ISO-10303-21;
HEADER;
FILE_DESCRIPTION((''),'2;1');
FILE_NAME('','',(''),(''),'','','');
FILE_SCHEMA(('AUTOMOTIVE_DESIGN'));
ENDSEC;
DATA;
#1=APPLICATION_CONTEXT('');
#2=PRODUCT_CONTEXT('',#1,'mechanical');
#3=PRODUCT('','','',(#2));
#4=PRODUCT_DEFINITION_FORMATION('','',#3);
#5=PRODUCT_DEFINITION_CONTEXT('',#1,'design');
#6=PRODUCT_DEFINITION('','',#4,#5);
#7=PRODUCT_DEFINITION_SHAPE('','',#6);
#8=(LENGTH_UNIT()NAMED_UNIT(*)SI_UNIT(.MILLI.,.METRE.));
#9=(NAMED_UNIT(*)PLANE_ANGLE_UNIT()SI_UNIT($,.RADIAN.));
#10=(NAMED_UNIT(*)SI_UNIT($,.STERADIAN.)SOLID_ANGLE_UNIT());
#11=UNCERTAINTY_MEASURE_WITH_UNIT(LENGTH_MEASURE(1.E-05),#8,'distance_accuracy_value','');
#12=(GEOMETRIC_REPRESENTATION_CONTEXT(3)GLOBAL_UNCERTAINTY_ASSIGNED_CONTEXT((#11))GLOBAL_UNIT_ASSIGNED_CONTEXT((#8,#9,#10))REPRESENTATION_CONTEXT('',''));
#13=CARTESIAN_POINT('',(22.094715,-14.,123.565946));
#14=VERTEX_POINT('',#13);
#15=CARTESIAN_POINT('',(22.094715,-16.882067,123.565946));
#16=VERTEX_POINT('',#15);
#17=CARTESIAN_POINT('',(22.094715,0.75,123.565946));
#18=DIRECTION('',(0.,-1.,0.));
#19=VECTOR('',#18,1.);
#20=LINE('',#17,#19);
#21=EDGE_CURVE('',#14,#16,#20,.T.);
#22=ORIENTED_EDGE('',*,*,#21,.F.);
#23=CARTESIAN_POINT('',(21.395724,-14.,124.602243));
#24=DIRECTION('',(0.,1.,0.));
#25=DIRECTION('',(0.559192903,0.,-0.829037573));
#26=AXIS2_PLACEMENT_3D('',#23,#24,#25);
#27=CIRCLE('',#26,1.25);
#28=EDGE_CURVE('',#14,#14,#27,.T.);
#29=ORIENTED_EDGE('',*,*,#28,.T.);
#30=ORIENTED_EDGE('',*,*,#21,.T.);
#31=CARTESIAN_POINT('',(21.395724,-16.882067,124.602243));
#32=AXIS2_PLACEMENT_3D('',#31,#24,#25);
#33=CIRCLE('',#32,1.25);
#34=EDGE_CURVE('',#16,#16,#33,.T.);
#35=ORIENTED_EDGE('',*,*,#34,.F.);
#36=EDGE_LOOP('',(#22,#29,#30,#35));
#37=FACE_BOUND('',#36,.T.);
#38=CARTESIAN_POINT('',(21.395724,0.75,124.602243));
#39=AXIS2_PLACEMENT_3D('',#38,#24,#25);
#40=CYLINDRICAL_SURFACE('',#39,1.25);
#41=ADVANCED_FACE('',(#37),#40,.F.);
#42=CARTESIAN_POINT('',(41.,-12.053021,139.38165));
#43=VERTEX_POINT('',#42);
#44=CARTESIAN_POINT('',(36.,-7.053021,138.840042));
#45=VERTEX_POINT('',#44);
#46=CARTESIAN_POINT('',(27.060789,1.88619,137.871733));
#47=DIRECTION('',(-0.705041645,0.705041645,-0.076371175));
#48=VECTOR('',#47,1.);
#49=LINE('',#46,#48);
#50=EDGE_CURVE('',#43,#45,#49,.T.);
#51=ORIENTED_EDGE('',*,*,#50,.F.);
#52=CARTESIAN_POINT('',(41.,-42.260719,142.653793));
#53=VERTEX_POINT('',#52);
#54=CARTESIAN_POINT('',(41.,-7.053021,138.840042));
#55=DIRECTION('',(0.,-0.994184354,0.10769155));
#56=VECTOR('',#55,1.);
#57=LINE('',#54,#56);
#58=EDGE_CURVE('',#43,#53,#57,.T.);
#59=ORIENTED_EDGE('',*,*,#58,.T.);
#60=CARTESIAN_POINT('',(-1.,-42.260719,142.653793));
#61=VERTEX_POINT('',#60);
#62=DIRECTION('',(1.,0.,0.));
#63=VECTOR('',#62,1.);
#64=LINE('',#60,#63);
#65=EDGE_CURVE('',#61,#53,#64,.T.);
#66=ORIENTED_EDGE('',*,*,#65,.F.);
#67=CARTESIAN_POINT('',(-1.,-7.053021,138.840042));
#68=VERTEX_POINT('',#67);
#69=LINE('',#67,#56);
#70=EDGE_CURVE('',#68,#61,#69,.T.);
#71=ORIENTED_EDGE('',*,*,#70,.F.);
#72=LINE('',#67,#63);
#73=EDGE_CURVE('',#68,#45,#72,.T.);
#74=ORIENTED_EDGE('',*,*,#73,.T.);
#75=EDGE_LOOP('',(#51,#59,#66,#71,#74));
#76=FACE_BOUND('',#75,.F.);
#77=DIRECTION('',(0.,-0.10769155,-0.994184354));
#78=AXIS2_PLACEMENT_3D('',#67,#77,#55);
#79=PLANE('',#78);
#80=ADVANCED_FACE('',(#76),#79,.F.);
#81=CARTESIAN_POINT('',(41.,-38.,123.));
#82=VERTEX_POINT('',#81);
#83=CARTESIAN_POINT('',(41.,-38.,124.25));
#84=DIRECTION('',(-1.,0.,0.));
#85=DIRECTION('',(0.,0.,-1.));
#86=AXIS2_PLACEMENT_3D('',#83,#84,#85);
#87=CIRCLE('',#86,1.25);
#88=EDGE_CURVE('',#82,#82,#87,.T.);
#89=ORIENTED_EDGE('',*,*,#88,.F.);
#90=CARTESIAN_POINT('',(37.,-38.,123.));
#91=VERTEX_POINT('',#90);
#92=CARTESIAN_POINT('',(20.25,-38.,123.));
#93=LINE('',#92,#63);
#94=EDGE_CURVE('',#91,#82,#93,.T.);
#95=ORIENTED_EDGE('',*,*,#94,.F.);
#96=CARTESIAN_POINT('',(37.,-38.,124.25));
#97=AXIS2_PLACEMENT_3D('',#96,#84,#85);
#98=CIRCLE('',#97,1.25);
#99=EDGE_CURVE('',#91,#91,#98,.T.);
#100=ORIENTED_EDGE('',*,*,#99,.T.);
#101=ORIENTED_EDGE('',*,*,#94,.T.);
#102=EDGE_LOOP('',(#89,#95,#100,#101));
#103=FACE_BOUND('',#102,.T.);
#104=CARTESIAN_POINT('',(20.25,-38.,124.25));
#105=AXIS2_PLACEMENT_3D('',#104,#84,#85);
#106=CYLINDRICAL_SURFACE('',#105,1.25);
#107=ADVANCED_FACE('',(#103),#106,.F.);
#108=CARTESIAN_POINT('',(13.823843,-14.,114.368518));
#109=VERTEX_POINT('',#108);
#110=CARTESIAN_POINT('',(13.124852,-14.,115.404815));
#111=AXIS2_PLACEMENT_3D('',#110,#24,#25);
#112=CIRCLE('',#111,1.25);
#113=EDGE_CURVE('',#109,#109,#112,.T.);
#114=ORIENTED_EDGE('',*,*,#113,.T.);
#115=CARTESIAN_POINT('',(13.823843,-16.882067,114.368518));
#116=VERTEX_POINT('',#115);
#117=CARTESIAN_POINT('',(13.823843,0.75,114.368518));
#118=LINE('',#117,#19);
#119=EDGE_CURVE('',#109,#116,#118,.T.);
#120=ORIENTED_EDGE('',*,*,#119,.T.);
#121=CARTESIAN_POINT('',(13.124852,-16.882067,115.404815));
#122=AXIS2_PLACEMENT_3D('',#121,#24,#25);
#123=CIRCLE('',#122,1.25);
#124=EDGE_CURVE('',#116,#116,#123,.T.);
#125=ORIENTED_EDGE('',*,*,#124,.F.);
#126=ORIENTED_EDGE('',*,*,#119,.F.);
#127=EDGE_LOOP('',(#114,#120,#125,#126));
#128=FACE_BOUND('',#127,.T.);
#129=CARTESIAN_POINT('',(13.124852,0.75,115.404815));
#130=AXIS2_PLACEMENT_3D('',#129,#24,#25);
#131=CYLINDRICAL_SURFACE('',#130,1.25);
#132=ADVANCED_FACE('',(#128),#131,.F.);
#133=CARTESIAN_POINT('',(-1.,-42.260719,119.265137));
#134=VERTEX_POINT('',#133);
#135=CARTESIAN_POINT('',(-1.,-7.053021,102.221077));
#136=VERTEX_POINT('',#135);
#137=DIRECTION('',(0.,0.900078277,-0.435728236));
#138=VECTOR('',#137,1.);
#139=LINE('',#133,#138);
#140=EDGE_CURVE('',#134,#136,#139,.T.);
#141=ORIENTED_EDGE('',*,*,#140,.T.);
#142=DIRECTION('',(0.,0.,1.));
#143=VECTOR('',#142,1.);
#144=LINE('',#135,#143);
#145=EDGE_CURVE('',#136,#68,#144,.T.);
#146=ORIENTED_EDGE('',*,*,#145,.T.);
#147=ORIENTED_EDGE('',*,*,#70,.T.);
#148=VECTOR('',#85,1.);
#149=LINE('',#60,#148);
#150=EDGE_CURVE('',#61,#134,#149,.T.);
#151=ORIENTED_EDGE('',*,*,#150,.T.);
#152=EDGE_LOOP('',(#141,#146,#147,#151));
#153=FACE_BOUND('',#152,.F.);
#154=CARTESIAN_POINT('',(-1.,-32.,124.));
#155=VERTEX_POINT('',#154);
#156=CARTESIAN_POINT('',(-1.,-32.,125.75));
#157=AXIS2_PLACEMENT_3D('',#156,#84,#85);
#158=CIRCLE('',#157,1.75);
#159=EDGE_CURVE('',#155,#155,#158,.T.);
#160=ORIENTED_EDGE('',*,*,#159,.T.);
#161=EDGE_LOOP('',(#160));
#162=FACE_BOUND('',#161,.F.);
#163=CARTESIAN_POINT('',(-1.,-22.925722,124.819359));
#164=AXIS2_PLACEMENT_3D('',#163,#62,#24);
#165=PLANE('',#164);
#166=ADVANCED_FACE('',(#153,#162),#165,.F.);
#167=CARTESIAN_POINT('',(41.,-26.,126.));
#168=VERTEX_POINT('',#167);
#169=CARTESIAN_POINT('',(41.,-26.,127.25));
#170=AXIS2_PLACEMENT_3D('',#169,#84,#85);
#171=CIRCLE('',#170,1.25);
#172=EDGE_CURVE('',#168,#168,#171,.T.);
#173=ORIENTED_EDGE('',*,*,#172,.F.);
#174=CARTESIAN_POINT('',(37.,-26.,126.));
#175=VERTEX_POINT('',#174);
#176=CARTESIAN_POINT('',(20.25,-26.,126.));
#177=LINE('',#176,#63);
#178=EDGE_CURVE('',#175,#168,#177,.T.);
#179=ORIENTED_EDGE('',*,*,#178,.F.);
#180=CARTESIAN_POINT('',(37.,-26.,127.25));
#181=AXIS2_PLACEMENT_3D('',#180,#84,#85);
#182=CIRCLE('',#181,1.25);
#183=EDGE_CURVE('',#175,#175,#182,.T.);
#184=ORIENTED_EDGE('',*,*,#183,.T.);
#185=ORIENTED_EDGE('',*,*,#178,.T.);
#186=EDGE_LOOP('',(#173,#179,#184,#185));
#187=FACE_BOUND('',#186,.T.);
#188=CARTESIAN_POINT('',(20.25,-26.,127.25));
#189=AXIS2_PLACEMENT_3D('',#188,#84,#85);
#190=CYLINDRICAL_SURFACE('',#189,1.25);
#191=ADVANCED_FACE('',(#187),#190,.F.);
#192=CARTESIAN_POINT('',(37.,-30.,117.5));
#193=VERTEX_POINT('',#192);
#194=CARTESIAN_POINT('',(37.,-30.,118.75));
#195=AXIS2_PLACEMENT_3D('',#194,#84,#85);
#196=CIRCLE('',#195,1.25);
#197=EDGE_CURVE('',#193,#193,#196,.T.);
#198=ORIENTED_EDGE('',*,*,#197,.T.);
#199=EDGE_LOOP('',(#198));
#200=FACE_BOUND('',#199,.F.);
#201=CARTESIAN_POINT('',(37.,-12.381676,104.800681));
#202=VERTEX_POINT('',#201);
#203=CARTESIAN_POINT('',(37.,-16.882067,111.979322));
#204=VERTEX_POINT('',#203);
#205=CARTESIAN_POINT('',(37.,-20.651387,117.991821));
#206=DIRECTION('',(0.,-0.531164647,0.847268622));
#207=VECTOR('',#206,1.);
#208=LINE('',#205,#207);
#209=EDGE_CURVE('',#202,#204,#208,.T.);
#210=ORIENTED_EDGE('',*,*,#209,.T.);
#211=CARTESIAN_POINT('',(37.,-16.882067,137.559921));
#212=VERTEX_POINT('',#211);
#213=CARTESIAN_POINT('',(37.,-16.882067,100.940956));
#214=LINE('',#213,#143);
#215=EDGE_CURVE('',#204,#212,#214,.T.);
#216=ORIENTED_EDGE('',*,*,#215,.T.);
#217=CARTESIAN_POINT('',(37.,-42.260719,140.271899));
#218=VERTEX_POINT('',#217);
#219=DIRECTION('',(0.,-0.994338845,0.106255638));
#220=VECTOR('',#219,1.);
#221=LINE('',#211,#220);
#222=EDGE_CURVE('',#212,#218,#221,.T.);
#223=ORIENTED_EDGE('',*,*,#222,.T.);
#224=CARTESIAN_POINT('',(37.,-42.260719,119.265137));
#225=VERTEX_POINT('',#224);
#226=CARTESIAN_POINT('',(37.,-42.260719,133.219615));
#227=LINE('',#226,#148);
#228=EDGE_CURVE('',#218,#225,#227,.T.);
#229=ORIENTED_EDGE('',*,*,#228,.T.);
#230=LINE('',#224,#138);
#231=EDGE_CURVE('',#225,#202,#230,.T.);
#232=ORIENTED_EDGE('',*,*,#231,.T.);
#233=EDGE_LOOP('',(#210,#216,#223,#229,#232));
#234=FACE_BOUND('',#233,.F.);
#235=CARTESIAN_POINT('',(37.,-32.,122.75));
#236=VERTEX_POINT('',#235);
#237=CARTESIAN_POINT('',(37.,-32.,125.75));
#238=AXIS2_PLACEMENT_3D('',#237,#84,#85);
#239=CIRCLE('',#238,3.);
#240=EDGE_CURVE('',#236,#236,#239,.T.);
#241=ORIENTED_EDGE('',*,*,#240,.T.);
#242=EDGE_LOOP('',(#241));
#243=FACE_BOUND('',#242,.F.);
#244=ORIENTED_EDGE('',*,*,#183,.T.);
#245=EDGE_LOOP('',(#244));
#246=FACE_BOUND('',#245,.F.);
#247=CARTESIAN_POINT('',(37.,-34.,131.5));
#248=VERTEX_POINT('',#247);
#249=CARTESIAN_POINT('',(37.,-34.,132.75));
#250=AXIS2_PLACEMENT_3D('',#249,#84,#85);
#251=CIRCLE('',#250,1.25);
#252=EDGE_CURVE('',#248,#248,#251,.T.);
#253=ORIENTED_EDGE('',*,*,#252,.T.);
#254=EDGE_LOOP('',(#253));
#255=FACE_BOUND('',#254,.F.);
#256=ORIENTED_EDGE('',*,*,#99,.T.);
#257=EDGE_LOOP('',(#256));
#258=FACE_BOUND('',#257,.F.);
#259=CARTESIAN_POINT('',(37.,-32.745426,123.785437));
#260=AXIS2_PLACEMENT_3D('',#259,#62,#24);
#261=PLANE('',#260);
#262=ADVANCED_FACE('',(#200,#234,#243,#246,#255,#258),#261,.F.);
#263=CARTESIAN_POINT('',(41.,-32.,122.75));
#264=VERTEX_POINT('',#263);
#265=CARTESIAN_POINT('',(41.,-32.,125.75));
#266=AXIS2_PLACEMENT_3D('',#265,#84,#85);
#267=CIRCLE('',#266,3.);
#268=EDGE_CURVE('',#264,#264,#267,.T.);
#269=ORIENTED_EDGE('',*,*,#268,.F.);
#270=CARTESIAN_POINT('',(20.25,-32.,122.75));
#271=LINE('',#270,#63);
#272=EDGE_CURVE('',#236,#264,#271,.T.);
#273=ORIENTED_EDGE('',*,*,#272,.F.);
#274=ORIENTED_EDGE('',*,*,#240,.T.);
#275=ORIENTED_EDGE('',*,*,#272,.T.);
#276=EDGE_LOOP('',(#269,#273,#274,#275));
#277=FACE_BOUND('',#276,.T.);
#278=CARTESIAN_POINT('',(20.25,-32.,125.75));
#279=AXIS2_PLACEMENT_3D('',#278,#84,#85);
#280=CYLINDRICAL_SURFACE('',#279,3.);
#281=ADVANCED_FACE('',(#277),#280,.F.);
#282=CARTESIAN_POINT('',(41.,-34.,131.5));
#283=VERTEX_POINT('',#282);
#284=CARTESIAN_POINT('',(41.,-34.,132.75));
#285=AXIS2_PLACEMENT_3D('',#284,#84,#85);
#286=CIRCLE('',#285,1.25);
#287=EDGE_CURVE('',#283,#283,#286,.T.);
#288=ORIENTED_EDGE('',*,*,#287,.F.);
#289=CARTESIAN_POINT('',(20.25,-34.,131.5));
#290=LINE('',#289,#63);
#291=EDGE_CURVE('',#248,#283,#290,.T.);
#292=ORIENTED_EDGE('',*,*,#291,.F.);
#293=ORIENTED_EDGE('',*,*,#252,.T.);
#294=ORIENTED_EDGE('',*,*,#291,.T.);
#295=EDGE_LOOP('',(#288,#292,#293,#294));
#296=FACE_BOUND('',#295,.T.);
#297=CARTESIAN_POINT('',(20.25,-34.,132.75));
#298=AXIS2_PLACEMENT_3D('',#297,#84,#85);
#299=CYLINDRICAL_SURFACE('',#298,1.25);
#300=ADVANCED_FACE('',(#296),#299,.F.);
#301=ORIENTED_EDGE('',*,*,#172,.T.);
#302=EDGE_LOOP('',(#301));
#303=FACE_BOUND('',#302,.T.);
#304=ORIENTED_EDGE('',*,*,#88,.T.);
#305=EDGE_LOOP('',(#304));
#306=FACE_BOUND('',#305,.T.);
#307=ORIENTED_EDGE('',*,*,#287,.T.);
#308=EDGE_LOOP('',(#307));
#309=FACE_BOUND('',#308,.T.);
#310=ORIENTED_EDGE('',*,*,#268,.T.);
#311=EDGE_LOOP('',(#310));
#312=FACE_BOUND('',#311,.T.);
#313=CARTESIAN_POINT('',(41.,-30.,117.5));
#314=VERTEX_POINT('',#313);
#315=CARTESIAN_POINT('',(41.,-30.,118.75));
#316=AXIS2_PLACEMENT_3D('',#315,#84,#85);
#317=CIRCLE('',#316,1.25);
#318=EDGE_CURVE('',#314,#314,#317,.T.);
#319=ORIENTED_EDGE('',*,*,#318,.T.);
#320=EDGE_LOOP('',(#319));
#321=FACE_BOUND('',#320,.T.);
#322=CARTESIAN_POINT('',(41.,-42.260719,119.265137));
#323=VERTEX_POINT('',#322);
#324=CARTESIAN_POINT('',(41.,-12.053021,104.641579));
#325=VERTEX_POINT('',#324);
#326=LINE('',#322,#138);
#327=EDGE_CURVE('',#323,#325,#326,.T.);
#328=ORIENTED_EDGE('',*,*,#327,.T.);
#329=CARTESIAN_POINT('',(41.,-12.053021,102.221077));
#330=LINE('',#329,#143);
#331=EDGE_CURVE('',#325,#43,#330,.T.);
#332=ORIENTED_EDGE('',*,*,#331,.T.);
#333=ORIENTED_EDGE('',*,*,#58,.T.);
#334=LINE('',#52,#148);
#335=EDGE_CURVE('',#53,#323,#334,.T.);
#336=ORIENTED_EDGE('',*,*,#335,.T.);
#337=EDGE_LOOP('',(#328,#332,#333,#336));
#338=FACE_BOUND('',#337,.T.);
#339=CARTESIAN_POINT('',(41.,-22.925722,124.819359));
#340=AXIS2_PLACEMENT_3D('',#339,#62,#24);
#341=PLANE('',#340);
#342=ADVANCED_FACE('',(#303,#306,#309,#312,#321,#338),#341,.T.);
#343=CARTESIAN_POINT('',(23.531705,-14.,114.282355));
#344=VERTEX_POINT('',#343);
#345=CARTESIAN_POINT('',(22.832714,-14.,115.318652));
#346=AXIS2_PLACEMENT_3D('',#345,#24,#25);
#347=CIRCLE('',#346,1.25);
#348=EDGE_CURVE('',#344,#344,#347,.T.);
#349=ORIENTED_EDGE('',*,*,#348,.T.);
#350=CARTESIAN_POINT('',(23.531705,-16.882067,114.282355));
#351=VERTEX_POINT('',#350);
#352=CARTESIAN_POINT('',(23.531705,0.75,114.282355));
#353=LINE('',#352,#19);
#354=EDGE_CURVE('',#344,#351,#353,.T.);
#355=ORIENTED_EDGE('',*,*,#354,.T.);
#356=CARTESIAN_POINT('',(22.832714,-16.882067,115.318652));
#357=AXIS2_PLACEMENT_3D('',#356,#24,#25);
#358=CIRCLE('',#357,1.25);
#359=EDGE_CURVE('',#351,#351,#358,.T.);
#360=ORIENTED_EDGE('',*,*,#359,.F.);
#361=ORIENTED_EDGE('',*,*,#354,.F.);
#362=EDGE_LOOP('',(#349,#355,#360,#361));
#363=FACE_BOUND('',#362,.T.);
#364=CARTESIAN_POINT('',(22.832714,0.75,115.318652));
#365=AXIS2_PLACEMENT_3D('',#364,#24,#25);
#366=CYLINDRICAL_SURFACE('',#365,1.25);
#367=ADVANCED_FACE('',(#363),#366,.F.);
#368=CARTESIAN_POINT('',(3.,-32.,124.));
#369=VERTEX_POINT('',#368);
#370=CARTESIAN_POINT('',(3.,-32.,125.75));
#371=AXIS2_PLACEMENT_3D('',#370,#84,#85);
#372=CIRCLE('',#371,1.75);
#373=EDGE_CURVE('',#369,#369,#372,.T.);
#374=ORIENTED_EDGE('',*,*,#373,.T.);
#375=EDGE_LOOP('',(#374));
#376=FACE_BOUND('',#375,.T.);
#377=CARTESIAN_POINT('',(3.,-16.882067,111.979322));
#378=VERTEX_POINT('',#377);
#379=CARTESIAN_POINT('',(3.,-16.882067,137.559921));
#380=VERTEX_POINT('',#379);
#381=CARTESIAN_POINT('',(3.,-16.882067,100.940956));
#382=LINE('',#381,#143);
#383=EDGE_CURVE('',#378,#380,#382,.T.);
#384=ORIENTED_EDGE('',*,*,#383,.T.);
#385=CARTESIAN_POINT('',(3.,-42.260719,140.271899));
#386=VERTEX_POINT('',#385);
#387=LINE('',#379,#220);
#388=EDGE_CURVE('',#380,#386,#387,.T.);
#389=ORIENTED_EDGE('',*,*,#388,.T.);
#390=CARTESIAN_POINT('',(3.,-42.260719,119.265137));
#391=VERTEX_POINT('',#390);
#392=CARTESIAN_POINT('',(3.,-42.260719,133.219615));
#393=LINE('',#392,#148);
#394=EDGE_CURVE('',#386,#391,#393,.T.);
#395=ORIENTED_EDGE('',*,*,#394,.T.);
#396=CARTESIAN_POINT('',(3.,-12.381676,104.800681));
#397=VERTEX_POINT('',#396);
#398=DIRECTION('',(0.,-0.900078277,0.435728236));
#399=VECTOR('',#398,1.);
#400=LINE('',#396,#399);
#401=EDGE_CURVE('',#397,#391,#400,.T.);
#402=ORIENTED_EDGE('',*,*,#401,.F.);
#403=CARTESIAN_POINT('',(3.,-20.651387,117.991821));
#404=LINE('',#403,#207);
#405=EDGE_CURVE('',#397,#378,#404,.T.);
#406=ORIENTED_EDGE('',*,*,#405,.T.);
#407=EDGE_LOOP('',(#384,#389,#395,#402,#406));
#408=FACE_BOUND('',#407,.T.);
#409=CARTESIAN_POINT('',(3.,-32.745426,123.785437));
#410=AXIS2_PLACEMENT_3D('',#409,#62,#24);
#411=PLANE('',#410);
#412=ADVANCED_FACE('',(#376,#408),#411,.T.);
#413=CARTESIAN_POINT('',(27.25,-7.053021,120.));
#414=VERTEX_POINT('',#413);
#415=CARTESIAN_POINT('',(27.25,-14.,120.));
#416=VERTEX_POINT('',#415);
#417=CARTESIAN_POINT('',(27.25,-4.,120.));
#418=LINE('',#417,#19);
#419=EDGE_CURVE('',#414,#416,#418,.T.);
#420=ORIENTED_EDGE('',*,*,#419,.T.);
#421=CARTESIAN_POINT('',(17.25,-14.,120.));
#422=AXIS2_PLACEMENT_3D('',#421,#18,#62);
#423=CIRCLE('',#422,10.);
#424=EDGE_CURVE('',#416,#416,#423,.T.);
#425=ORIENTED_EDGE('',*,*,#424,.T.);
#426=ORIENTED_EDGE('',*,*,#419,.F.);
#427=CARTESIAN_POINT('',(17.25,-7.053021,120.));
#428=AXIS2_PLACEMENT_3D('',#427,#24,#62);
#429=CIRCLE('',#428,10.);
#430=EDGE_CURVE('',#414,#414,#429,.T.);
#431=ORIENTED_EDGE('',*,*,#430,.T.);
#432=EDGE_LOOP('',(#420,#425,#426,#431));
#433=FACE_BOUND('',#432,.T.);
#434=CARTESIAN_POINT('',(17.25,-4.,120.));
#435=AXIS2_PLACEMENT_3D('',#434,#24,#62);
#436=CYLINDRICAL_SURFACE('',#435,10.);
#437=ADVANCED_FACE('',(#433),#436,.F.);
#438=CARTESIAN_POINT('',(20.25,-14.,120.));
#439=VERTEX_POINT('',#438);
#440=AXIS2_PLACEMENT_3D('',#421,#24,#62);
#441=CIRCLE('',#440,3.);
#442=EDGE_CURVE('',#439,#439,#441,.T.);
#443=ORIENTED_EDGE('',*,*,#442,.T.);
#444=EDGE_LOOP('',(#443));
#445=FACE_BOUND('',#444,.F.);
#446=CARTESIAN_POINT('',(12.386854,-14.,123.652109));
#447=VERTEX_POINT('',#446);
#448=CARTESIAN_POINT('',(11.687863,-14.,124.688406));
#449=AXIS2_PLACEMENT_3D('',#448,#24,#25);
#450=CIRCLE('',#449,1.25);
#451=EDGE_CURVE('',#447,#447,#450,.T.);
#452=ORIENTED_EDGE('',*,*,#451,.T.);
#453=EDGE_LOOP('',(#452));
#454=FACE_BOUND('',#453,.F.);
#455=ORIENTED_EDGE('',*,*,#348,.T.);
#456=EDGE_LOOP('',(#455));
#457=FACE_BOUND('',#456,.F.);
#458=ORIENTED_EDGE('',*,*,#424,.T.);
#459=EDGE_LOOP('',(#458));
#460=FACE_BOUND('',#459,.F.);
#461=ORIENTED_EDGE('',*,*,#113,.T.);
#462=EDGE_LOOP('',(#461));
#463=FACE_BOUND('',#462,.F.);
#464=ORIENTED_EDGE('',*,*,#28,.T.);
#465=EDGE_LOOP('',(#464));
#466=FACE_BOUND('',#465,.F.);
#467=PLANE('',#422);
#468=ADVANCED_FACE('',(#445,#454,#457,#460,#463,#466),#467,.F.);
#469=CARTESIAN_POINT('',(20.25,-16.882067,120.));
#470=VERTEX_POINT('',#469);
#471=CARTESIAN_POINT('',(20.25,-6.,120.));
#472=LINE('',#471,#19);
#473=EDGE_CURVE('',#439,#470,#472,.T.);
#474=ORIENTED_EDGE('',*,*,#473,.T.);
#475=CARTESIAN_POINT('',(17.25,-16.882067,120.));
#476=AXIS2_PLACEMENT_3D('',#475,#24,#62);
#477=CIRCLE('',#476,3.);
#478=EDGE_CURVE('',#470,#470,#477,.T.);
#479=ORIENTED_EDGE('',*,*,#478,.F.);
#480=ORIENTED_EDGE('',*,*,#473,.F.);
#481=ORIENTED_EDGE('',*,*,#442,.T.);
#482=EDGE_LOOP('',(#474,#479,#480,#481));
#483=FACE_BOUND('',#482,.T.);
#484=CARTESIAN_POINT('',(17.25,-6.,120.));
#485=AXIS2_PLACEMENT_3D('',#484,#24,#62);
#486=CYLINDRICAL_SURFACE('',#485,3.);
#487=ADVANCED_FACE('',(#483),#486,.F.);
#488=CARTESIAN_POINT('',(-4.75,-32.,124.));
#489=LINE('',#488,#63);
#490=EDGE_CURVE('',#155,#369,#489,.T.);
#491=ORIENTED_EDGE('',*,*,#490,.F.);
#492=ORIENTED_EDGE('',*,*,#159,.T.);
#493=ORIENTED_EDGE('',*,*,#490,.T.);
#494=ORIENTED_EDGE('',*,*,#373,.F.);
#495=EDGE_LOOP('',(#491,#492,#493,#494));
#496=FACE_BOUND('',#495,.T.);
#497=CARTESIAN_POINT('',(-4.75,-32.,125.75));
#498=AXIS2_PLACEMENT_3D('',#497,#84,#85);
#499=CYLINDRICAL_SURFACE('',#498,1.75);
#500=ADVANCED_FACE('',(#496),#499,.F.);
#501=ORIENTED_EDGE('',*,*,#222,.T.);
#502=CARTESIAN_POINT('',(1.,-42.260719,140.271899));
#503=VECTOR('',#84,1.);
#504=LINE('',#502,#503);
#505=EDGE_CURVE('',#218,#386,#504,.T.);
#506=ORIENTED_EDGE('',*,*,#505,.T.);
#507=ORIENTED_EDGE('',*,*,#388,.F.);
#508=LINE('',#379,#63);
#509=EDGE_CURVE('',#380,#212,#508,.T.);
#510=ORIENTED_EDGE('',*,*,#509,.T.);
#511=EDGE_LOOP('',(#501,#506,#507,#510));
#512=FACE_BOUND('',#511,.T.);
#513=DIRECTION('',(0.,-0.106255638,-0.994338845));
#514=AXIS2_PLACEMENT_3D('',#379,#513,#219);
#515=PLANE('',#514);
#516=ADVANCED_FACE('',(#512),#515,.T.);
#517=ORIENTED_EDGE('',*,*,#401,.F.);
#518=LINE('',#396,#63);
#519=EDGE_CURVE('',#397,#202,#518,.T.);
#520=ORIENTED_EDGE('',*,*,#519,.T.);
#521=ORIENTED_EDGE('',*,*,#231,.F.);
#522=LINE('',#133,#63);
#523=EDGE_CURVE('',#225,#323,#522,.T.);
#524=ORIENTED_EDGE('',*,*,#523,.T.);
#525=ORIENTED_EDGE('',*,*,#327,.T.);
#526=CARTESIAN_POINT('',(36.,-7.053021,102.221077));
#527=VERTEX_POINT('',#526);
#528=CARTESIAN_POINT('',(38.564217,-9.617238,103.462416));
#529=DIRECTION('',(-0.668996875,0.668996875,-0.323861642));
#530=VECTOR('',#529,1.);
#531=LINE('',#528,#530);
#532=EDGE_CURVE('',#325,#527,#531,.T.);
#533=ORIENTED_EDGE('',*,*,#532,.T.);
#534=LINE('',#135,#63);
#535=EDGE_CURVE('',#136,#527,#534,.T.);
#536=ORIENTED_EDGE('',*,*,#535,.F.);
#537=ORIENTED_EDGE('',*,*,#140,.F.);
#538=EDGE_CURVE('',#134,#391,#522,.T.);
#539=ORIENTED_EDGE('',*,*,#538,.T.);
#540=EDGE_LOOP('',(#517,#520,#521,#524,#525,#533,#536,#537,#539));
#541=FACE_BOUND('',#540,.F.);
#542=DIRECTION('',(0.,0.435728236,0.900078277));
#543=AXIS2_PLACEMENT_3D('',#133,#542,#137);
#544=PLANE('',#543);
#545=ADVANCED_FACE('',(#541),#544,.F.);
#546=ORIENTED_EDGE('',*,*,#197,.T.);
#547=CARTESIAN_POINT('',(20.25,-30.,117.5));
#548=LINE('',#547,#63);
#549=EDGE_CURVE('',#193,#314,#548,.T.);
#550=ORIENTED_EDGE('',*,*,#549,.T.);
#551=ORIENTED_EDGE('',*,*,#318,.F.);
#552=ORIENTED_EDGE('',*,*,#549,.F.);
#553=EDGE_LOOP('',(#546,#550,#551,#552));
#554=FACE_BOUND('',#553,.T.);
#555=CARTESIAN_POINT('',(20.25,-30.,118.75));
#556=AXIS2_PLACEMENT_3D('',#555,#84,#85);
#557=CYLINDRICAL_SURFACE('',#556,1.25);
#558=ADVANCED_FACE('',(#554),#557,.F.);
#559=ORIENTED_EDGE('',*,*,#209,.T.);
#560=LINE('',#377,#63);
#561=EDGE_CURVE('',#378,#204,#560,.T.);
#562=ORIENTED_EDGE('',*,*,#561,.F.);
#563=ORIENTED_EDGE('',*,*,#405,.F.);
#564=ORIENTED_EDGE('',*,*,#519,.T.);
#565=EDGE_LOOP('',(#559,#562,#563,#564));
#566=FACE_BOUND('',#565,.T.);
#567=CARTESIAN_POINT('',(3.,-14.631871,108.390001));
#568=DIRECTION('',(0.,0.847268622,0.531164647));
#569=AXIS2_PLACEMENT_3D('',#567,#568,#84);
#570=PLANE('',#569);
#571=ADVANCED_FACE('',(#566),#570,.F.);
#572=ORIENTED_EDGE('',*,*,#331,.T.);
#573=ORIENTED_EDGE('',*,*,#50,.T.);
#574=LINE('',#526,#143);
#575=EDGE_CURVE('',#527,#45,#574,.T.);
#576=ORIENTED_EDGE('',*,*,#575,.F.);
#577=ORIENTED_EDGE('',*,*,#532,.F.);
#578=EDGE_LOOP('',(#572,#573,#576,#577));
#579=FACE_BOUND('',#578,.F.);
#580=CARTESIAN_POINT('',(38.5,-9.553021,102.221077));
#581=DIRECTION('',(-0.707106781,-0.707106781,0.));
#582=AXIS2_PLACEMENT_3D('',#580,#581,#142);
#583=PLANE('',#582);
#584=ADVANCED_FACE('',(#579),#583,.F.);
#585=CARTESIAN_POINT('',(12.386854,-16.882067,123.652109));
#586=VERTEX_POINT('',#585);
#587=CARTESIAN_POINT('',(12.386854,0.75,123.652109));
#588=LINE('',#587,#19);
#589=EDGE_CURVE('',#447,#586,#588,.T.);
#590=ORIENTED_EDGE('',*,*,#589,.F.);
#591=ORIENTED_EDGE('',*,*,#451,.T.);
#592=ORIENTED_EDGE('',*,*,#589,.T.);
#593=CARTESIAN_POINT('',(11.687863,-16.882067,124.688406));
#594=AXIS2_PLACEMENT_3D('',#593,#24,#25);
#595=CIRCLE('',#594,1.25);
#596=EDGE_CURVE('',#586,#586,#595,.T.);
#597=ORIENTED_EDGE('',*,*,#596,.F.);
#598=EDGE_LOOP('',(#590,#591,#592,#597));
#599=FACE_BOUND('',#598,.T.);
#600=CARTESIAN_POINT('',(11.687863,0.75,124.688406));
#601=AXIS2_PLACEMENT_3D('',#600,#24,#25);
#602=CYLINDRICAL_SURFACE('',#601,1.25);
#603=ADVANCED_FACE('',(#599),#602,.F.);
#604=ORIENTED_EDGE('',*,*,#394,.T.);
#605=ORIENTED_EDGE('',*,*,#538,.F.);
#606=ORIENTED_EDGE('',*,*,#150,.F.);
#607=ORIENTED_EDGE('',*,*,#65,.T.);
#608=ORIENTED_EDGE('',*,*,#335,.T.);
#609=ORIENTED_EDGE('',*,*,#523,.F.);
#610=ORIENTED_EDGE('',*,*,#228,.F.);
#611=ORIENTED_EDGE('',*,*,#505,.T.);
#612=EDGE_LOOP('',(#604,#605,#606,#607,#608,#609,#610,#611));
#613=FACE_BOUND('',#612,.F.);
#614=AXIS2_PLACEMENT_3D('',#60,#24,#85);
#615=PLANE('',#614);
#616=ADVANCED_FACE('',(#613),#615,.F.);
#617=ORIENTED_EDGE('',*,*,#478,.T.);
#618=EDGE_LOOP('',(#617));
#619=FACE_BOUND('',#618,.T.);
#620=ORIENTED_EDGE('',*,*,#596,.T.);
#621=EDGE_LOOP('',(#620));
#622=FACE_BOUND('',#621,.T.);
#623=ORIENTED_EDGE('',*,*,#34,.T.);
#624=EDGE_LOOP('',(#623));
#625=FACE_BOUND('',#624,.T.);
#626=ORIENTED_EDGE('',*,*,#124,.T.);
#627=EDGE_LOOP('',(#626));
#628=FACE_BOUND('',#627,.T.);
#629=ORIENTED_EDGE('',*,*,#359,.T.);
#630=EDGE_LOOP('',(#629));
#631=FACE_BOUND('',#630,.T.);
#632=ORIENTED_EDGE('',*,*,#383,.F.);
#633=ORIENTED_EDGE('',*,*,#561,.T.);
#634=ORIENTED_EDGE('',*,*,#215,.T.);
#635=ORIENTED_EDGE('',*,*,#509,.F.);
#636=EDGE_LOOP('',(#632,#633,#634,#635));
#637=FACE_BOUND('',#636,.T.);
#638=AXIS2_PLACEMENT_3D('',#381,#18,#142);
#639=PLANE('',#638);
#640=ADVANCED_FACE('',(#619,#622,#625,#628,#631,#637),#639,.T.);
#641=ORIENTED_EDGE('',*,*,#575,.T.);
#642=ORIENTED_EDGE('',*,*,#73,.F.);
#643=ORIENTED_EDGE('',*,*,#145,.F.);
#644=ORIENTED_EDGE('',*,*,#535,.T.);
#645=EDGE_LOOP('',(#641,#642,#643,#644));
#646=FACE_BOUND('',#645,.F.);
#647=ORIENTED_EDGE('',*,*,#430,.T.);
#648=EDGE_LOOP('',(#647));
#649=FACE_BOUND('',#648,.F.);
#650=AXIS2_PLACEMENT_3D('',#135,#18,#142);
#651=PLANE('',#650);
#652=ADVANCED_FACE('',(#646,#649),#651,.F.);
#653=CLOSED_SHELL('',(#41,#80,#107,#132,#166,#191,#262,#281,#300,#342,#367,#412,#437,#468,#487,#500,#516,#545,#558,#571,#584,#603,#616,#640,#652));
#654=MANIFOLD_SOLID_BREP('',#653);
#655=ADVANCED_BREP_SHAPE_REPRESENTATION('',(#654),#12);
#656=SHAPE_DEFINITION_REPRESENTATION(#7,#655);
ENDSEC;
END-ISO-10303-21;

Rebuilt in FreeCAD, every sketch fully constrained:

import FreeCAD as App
import Part
import Sketcher

V = App.Vector


def edges_at(feature, points):
    """Names of the edges that pass closest to the given points."""
    edges = feature.Shape.Edges
    near = lambda p: min(range(len(edges)), key=lambda i: edges[i].distToShape(Part.Vertex(*p))[0])
    return sorted({f"Edge{near(p) + 1}" for p in points})


def add_polygon(sketch, points):
    """Adds a closed chain of lines whose ends are joined by coincident constraints."""
    first, n = sketch.GeometryCount, len(points)
    for a, b in zip(points, points[1:] + points[:1]):
        sketch.addGeometry(Part.LineSegment(App.Vector(*a, 0), App.Vector(*b, 0)), False)
    for i in range(n):
        sketch.addConstraint(Sketcher.Constraint("Coincident", first + i, 2, first + (i + 1) % n, 1))

doc = App.newDocument("Part")
params = doc.addObject("Spreadsheet::Sheet", "Params")
for row, (alias, value) in enumerate([
    ("sketch1_diameter", "3.5 mm"),
    ("pad1_length", "22 mm"),
    ("sketch2_diameter", "2.5 mm"),
    ("pad2_length", "22 mm"),
    ("sketch3_diameter", "2.5 mm"),
    ("pad3_length", "22 mm"),
    ("sketch4_diameter", "2.5 mm"),
    ("pad4_length", "22 mm"),
    ("sketch5_diameter", "2.5 mm"),
    ("pad5_length", "22 mm"),
    ("sketch6_diameter", "2.5 mm"),
    ("pad6_length", "22 mm"),
    ("sketch7_diameter", "2.5 mm"),
    ("pad7_length", "22 mm"),
    ("sketch8_diameter", "2.5 mm"),
    ("pad8_length", "22 mm"),
    ("sketch9_diameter", "2.5 mm"),
    ("pad9_length", "22 mm"),
    ("sketch10_diameter", "6 mm"),
    ("pad10_length", "22 mm"),
    ("sketch11_diameter", "6 mm"),
    ("pad11_length", "13 mm"),
    ("sketch12_diameter", "20 mm"),
    ("pad12_length", "10 mm"),
    ("pad13_length", "34 mm"),
    ("pad14_length", "42 mm"),
    ("chamfer_size", "5 mm"),
    ("chamfer2_size", "5 mm"),
], start=1):
    params.set(f"A{row}", alias)
    params.set(f"B{row}", "=" + value)
    params.setAlias(f"B{row}", alias)

body = doc.addObject("PartDesign::Body", "Body")

# Sketch on XY plane
sketch1 = doc.addObject("Sketcher::SketchObject", "Sketch")
body.addObject(sketch1)
sketch1.AttachmentSupport = (doc.XY_Plane, [""])
sketch1.MapMode = "FlatFace"
sketch1.addGeometry(Part.Circle(V(0, 0, 0), V(0, 0, 1), 1.8), False)
sketch1.addConstraint([
    Sketcher.Constraint("Coincident", 0, 3, -1, 1),
    Sketcher.Constraint("Diameter", 0, 3.5),
])
sketch1.setExpression("Constraints[1]", "Params.sketch1_diameter")
pad1 = doc.addObject("PartDesign::Pad", "Pad")
body.addObject(pad1)
pad1.Profile = sketch1
pad1.setExpression("Length", "Params.pad1_length")
body2 = doc.addObject("PartDesign::Body", "Body001")
doc.recompute()

body.Placement = App.Placement(V(0, 0, 0), App.Rotation(V(0, 1, 0), 90))
boolean = doc.addObject("PartDesign::Boolean", "Boolean")
body2.addObject(boolean)
boolean.Type = "Fuse"
boolean.addObjects([body])
body3 = doc.addObject("PartDesign::Body", "Body002")
doc.recompute()

body2.Placement = App.Placement(V(-4.75, -32, 125.75), App.Rotation(V(0, 0, 1), 0))
boolean2 = doc.addObject("PartDesign::Boolean", "Boolean001")
body3.addObject(boolean2)
boolean2.Type = "Fuse"
boolean2.addObjects([body2])
body4 = doc.addObject("PartDesign::Body", "Body003")

# Sketch on XY plane
sketch2 = doc.addObject("Sketcher::SketchObject", "Sketch001")
body4.addObject(sketch2)
sketch2.AttachmentSupport = (doc.getObject("XY_Plane003"), [""])
sketch2.MapMode = "FlatFace"
sketch2.addGeometry(Part.Circle(V(0, 0, 0), V(0, 0, 1), 1.2), False)
sketch2.addConstraint([
    Sketcher.Constraint("Coincident", 0, 3, -1, 1),
    Sketcher.Constraint("Diameter", 0, 2.5),
])
sketch2.setExpression("Constraints[1]", "Params.sketch2_diameter")
pad2 = doc.addObject("PartDesign::Pad", "Pad001")
body4.addObject(pad2)
pad2.Profile = sketch2
pad2.setExpression("Length", "Params.pad2_length")
body5 = doc.addObject("PartDesign::Body", "Body004")
doc.recompute()

body4.Placement = App.Placement(V(0, 0, 0), App.Rotation(V(0, 1, 0), 90))
boolean3 = doc.addObject("PartDesign::Boolean", "Boolean002")
body5.addObject(boolean3)
boolean3.Type = "Fuse"
boolean3.addObjects([body4])
body6 = doc.addObject("PartDesign::Body", "Body005")
doc.recompute()

body5.Placement = App.Placement(V(20.25, -38, 124.25), App.Rotation(V(0, 0, 1), 0))
boolean4 = doc.addObject("PartDesign::Boolean", "Boolean003")
body6.addObject(boolean4)
boolean4.Type = "Fuse"
boolean4.addObjects([body5])
body7 = doc.addObject("PartDesign::Body", "Body006")

# Sketch on XY plane
sketch3 = doc.addObject("Sketcher::SketchObject", "Sketch002")
body7.addObject(sketch3)
sketch3.AttachmentSupport = (doc.getObject("XY_Plane006"), [""])
sketch3.MapMode = "FlatFace"
sketch3.addGeometry(Part.Circle(V(0, 0, 0), V(0, 0, 1), 1.2), False)
sketch3.addConstraint([
    Sketcher.Constraint("Coincident", 0, 3, -1, 1),
    Sketcher.Constraint("Diameter", 0, 2.5),
])
sketch3.setExpression("Constraints[1]", "Params.sketch3_diameter")
pad3 = doc.addObject("PartDesign::Pad", "Pad002")
body7.addObject(pad3)
pad3.Profile = sketch3
pad3.setExpression("Length", "Params.pad3_length")
body8 = doc.addObject("PartDesign::Body", "Body007")
doc.recompute()

body7.Placement = App.Placement(V(0, 0, 0), App.Rotation(V(0, 1, 0), 90))
boolean5 = doc.addObject("PartDesign::Boolean", "Boolean004")
body8.addObject(boolean5)
boolean5.Type = "Fuse"
boolean5.addObjects([body7])
body9 = doc.addObject("PartDesign::Body", "Body008")
doc.recompute()

body8.Placement = App.Placement(V(20.25, -26, 127.25), App.Rotation(V(0, 0, 1), 0))
boolean6 = doc.addObject("PartDesign::Boolean", "Boolean005")
body9.addObject(boolean6)
boolean6.Type = "Fuse"
boolean6.addObjects([body8])
body10 = doc.addObject("PartDesign::Body", "Body009")

# Sketch on XY plane
sketch4 = doc.addObject("Sketcher::SketchObject", "Sketch003")
body10.addObject(sketch4)
sketch4.AttachmentSupport = (doc.getObject("XY_Plane009"), [""])
sketch4.MapMode = "FlatFace"
sketch4.addGeometry(Part.Circle(V(0, 0, 0), V(0, 0, 1), 1.2), False)
sketch4.addConstraint([
    Sketcher.Constraint("Coincident", 0, 3, -1, 1),
    Sketcher.Constraint("Diameter", 0, 2.5),
])
sketch4.setExpression("Constraints[1]", "Params.sketch4_diameter")
pad4 = doc.addObject("PartDesign::Pad", "Pad003")
body10.addObject(pad4)
pad4.Profile = sketch4
pad4.setExpression("Length", "Params.pad4_length")
body11 = doc.addObject("PartDesign::Body", "Body010")
doc.recompute()

body10.Placement = App.Placement(V(0, 0, 0), App.Rotation(V(0, 1, 0), 90))
boolean7 = doc.addObject("PartDesign::Boolean", "Boolean006")
body11.addObject(boolean7)
boolean7.Type = "Fuse"
boolean7.addObjects([body10])
body12 = doc.addObject("PartDesign::Body", "Body011")
doc.recompute()

body11.Placement = App.Placement(V(20.25, -30, 118.75), App.Rotation(V(0, 0, 1), 0))
boolean8 = doc.addObject("PartDesign::Boolean", "Boolean007")
body12.addObject(boolean8)
boolean8.Type = "Fuse"
boolean8.addObjects([body11])
body13 = doc.addObject("PartDesign::Body", "Body012")

# Sketch on XY plane
sketch5 = doc.addObject("Sketcher::SketchObject", "Sketch004")
body13.addObject(sketch5)
sketch5.AttachmentSupport = (doc.getObject("XY_Plane012"), [""])
sketch5.MapMode = "FlatFace"
sketch5.addGeometry(Part.Circle(V(0, 0, 0), V(0, 0, 1), 1.2), False)
sketch5.addConstraint([
    Sketcher.Constraint("Coincident", 0, 3, -1, 1),
    Sketcher.Constraint("Diameter", 0, 2.5),
])
sketch5.setExpression("Constraints[1]", "Params.sketch5_diameter")
pad5 = doc.addObject("PartDesign::Pad", "Pad004")
body13.addObject(pad5)
pad5.Profile = sketch5
pad5.setExpression("Length", "Params.pad5_length")
body14 = doc.addObject("PartDesign::Body", "Body013")
doc.recompute()

body13.Placement = App.Placement(V(0, 0, 0), App.Rotation(V(0, 1, 0), 90))
boolean9 = doc.addObject("PartDesign::Boolean", "Boolean008")
body14.addObject(boolean9)
boolean9.Type = "Fuse"
boolean9.addObjects([body13])
body15 = doc.addObject("PartDesign::Body", "Body014")
body15.AllowCompound = True
doc.recompute()

body14.Placement = App.Placement(V(20.25, -34, 132.75), App.Rotation(V(0, 0, 1), 0))
boolean10 = doc.addObject("PartDesign::Boolean", "Boolean009")
body15.addObject(boolean10)
boolean10.Type = "Fuse"
boolean10.addObjects([body14])
doc.recompute()

boolean11 = doc.addObject("PartDesign::Boolean", "Boolean010")
body15.addObject(boolean11)
boolean11.Type = "Fuse"
boolean11.addObjects([body6])
doc.recompute()

boolean12 = doc.addObject("PartDesign::Boolean", "Boolean011")
body15.addObject(boolean12)
boolean12.Type = "Fuse"
boolean12.addObjects([body9])
doc.recompute()

boolean13 = doc.addObject("PartDesign::Boolean", "Boolean012")
body15.addObject(boolean13)
boolean13.Type = "Fuse"
boolean13.addObjects([body12])
body16 = doc.addObject("PartDesign::Body", "Body015")

# Sketch on XY plane
sketch6 = doc.addObject("Sketcher::SketchObject", "Sketch005")
body16.addObject(sketch6)
sketch6.AttachmentSupport = (doc.getObject("XY_Plane015"), [""])
sketch6.MapMode = "FlatFace"
sketch6.addGeometry(Part.Circle(V(0, 0, 0), V(0, 0, 1), 1.2), False)
sketch6.addConstraint([
    Sketcher.Constraint("Coincident", 0, 3, -1, 1),
    Sketcher.Constraint("Diameter", 0, 2.5),
])
sketch6.setExpression("Constraints[1]", "Params.sketch6_diameter")
pad6 = doc.addObject("PartDesign::Pad", "Pad005")
body16.addObject(pad6)
pad6.Profile = sketch6
pad6.setExpression("Length", "Params.pad6_length")
body17 = doc.addObject("PartDesign::Body", "Body016")
doc.recompute()

body16.Placement = App.Placement(V(0, 0, 0), App.Rotation(V(0, 1, 0), 90))
boolean14 = doc.addObject("PartDesign::Boolean", "Boolean013")
body17.addObject(boolean14)
boolean14.Type = "Fuse"
boolean14.addObjects([body16])
body18 = doc.addObject("PartDesign::Body", "Body017")
doc.recompute()

body17.Placement = App.Placement(V(20.25, -38, 124.25), App.Rotation(V(0, 0, 1), 0))
boolean15 = doc.addObject("PartDesign::Boolean", "Boolean014")
body18.addObject(boolean15)
boolean15.Type = "Fuse"
boolean15.addObjects([body17])
body19 = doc.addObject("PartDesign::Body", "Body018")

# Sketch on XY plane
sketch7 = doc.addObject("Sketcher::SketchObject", "Sketch006")
body19.addObject(sketch7)
sketch7.AttachmentSupport = (doc.getObject("XY_Plane018"), [""])
sketch7.MapMode = "FlatFace"
sketch7.addGeometry(Part.Circle(V(0, 0, 0), V(0, 0, 1), 1.2), False)
sketch7.addConstraint([
    Sketcher.Constraint("Coincident", 0, 3, -1, 1),
    Sketcher.Constraint("Diameter", 0, 2.5),
])
sketch7.setExpression("Constraints[1]", "Params.sketch7_diameter")
pad7 = doc.addObject("PartDesign::Pad", "Pad006")
body19.addObject(pad7)
pad7.Profile = sketch7
pad7.setExpression("Length", "Params.pad7_length")
body20 = doc.addObject("PartDesign::Body", "Body019")
doc.recompute()

body19.Placement = App.Placement(V(0, 0, 0), App.Rotation(V(0, 1, 0), 90))
boolean16 = doc.addObject("PartDesign::Boolean", "Boolean015")
body20.addObject(boolean16)
boolean16.Type = "Fuse"
boolean16.addObjects([body19])
body21 = doc.addObject("PartDesign::Body", "Body020")
doc.recompute()

body20.Placement = App.Placement(V(20.25, -26, 127.25), App.Rotation(V(0, 0, 1), 0))
boolean17 = doc.addObject("PartDesign::Boolean", "Boolean016")
body21.addObject(boolean17)
boolean17.Type = "Fuse"
boolean17.addObjects([body20])
body22 = doc.addObject("PartDesign::Body", "Body021")

# Sketch on XY plane
sketch8 = doc.addObject("Sketcher::SketchObject", "Sketch007")
body22.addObject(sketch8)
sketch8.AttachmentSupport = (doc.getObject("XY_Plane021"), [""])
sketch8.MapMode = "FlatFace"
sketch8.addGeometry(Part.Circle(V(0, 0, 0), V(0, 0, 1), 1.2), False)
sketch8.addConstraint([
    Sketcher.Constraint("Coincident", 0, 3, -1, 1),
    Sketcher.Constraint("Diameter", 0, 2.5),
])
sketch8.setExpression("Constraints[1]", "Params.sketch8_diameter")
pad8 = doc.addObject("PartDesign::Pad", "Pad007")
body22.addObject(pad8)
pad8.Profile = sketch8
pad8.setExpression("Length", "Params.pad8_length")
body23 = doc.addObject("PartDesign::Body", "Body022")
doc.recompute()

body22.Placement = App.Placement(V(0, 0, 0), App.Rotation(V(0, 1, 0), 90))
boolean18 = doc.addObject("PartDesign::Boolean", "Boolean017")
body23.addObject(boolean18)
boolean18.Type = "Fuse"
boolean18.addObjects([body22])
body24 = doc.addObject("PartDesign::Body", "Body023")
doc.recompute()

body23.Placement = App.Placement(V(20.25, -30, 118.75), App.Rotation(V(0, 0, 1), 0))
boolean19 = doc.addObject("PartDesign::Boolean", "Boolean018")
body24.addObject(boolean19)
boolean19.Type = "Fuse"
boolean19.addObjects([body23])
body25 = doc.addObject("PartDesign::Body", "Body024")

# Sketch on XY plane
sketch9 = doc.addObject("Sketcher::SketchObject", "Sketch008")
body25.addObject(sketch9)
sketch9.AttachmentSupport = (doc.getObject("XY_Plane024"), [""])
sketch9.MapMode = "FlatFace"
sketch9.addGeometry(Part.Circle(V(0, 0, 0), V(0, 0, 1), 1.2), False)
sketch9.addConstraint([
    Sketcher.Constraint("Coincident", 0, 3, -1, 1),
    Sketcher.Constraint("Diameter", 0, 2.5),
])
sketch9.setExpression("Constraints[1]", "Params.sketch9_diameter")
pad9 = doc.addObject("PartDesign::Pad", "Pad008")
body25.addObject(pad9)
pad9.Profile = sketch9
pad9.setExpression("Length", "Params.pad9_length")
body26 = doc.addObject("PartDesign::Body", "Body025")
doc.recompute()

body25.Placement = App.Placement(V(0, 0, 0), App.Rotation(V(0, 1, 0), 90))
boolean20 = doc.addObject("PartDesign::Boolean", "Boolean019")
body26.addObject(boolean20)
boolean20.Type = "Fuse"
boolean20.addObjects([body25])
body27 = doc.addObject("PartDesign::Body", "Body026")
body27.AllowCompound = True
doc.recompute()

body26.Placement = App.Placement(V(20.25, -34, 132.75), App.Rotation(V(0, 0, 1), 0))
boolean21 = doc.addObject("PartDesign::Boolean", "Boolean020")
body27.addObject(boolean21)
boolean21.Type = "Fuse"
boolean21.addObjects([body26])
doc.recompute()

boolean22 = doc.addObject("PartDesign::Boolean", "Boolean021")
body27.addObject(boolean22)
boolean22.Type = "Fuse"
boolean22.addObjects([body18])
doc.recompute()

boolean23 = doc.addObject("PartDesign::Boolean", "Boolean022")
body27.addObject(boolean23)
boolean23.Type = "Fuse"
boolean23.addObjects([body21])
doc.recompute()

boolean24 = doc.addObject("PartDesign::Boolean", "Boolean023")
body27.addObject(boolean24)
boolean24.Type = "Fuse"
boolean24.addObjects([body24])
body28 = doc.addObject("PartDesign::Body", "Body027")
body28.AllowCompound = True
doc.recompute()

body27.Placement = App.Placement(V(0, 0, 0), App.Rotation(V(1, 0, 0), 34))
boolean25 = doc.addObject("PartDesign::Boolean", "Boolean024")
body28.addObject(boolean25)
boolean25.Type = "Fuse"
boolean25.addObjects([body27])
body29 = doc.addObject("PartDesign::Body", "Body028")
body29.AllowCompound = True
doc.recompute()

body28.Placement = App.Placement(V(114.107998, 21, 33.646227), App.Rotation(V(0, 0, 1), 270))
boolean26 = doc.addObject("PartDesign::Boolean", "Boolean025")
body29.addObject(boolean26)
boolean26.Type = "Fuse"
boolean26.addObjects([body28])
body30 = doc.addObject("PartDesign::Body", "Body029")

# Sketch on XY plane
sketch10 = doc.addObject("Sketcher::SketchObject", "Sketch009")
body30.addObject(sketch10)
sketch10.AttachmentSupport = (doc.getObject("XY_Plane029"), [""])
sketch10.MapMode = "FlatFace"
sketch10.addGeometry(Part.Circle(V(0, 0, 0), V(0, 0, 1), 3), False)
sketch10.addConstraint([
    Sketcher.Constraint("Coincident", 0, 3, -1, 1),
    Sketcher.Constraint("Diameter", 0, 6.0),
])
sketch10.setExpression("Constraints[1]", "Params.sketch10_diameter")
pad10 = doc.addObject("PartDesign::Pad", "Pad009")
body30.addObject(pad10)
pad10.Profile = sketch10
pad10.setExpression("Length", "Params.pad10_length")
body31 = doc.addObject("PartDesign::Body", "Body030")
doc.recompute()

body30.Placement = App.Placement(V(0, 0, 0), App.Rotation(V(0, 1, 0), 90))
boolean27 = doc.addObject("PartDesign::Boolean", "Boolean026")
body31.addObject(boolean27)
boolean27.Type = "Fuse"
boolean27.addObjects([body30])
body32 = doc.addObject("PartDesign::Body", "Body031")
doc.recompute()

body31.Placement = App.Placement(V(20.25, -32, 125.75), App.Rotation(V(0, 0, 1), 0))
boolean28 = doc.addObject("PartDesign::Boolean", "Boolean027")
body32.addObject(boolean28)
boolean28.Type = "Fuse"
boolean28.addObjects([body31])
body33 = doc.addObject("PartDesign::Body", "Body032")

# Sketch on XY plane
sketch11 = doc.addObject("Sketcher::SketchObject", "Sketch010")
body33.addObject(sketch11)
sketch11.AttachmentSupport = (doc.getObject("XY_Plane032"), [""])
sketch11.MapMode = "FlatFace"
sketch11.addGeometry(Part.Circle(V(0, 0, 0), V(0, 0, 1), 3), False)
sketch11.addConstraint([
    Sketcher.Constraint("Coincident", 0, 3, -1, 1),
    Sketcher.Constraint("Diameter", 0, 6.0),
])
sketch11.setExpression("Constraints[1]", "Params.sketch11_diameter")
pad11 = doc.addObject("PartDesign::Pad", "Pad010")
body33.addObject(pad11)
pad11.Profile = sketch11
pad11.setExpression("Length", "Params.pad11_length")
body34 = doc.addObject("PartDesign::Body", "Body033")
doc.recompute()

body33.Placement = App.Placement(V(0, 0, 0), App.Rotation(V(1, 0, 0), 90))
boolean29 = doc.addObject("PartDesign::Boolean", "Boolean028")
body34.addObject(boolean29)
boolean29.Type = "Fuse"
boolean29.addObjects([body33])
body35 = doc.addObject("PartDesign::Body", "Body034")
doc.recompute()

body34.Placement = App.Placement(V(17.25, -6, 120), App.Rotation(V(0, 0, 1), 0))
boolean30 = doc.addObject("PartDesign::Boolean", "Boolean029")
body35.addObject(boolean30)
boolean30.Type = "Fuse"
boolean30.addObjects([body34])
body36 = doc.addObject("PartDesign::Body", "Body035")

# Sketch on XY plane
sketch12 = doc.addObject("Sketcher::SketchObject", "Sketch011")
body36.addObject(sketch12)
sketch12.AttachmentSupport = (doc.getObject("XY_Plane035"), [""])
sketch12.MapMode = "FlatFace"
sketch12.addGeometry(Part.Circle(V(0, 0, 0), V(0, 0, 1), 10), False)
sketch12.addConstraint([
    Sketcher.Constraint("Coincident", 0, 3, -1, 1),
    Sketcher.Constraint("Diameter", 0, 20.0),
])
sketch12.setExpression("Constraints[1]", "Params.sketch12_diameter")
pad12 = doc.addObject("PartDesign::Pad", "Pad011")
body36.addObject(pad12)
pad12.Profile = sketch12
pad12.setExpression("Length", "Params.pad12_length")
body37 = doc.addObject("PartDesign::Body", "Body036")
doc.recompute()

body36.Placement = App.Placement(V(0, 0, 0), App.Rotation(V(1, 0, 0), 90))
boolean31 = doc.addObject("PartDesign::Boolean", "Boolean030")
body37.addObject(boolean31)
boolean31.Type = "Fuse"
boolean31.addObjects([body36])
body38 = doc.addObject("PartDesign::Body", "Body037")
doc.recompute()

body37.Placement = App.Placement(V(17.25, -4, 120), App.Rotation(V(0, 0, 1), 0))
boolean32 = doc.addObject("PartDesign::Boolean", "Boolean031")
body38.addObject(boolean32)
boolean32.Type = "Fuse"
boolean32.addObjects([body37])
body39 = doc.addObject("PartDesign::Body", "Body038")

# Sketch on YZ plane
sketch13 = doc.addObject("Sketcher::SketchObject", "Sketch012")
body39.addObject(sketch13)
sketch13.AttachmentSupport = (doc.getObject("YZ_Plane038"), [""])
sketch13.MapMode = "FlatFace"
sketch13.AttachmentOffset = App.Placement(V(0, 0, 3), App.Rotation())
add_polygon(sketch13, [(-17, 101), (-17, 138), (-53, 141), (-53, 120)])  # lines 0-3
sketch13.addConstraint([
    Sketcher.Constraint("Vertical", 0),
    Sketcher.Constraint("Vertical", 2),
    Sketcher.Constraint("DistanceY", 2, 2, 2, 1, 21.685241),
    Sketcher.Constraint("DistanceY", 0, 1, 0, 2, 36.618965),
    Sketcher.Constraint("DistanceY", -1, 1, 0, 2, 137.559921),
    Sketcher.Constraint("DistanceY", -1, 1, 1, 2, 141.373672),
    Sketcher.Constraint("DistanceX", 1, 2, 0, 2, 35.689031),
    Sketcher.Constraint("DistanceX", 0, 2, -1, 1, 16.882067),
])
pad13 = doc.addObject("PartDesign::Pad", "Pad012")
body39.addObject(pad13)
pad13.Profile = sketch13
pad13.setExpression("Length", "Params.pad13_length")
body40 = doc.addObject("PartDesign::Body", "Body039")

# Sketch on YZ plane
sketch14 = doc.addObject("Sketcher::SketchObject", "Sketch013")
body40.addObject(sketch14)
sketch14.AttachmentSupport = (doc.getObject("YZ_Plane039"), [""])
sketch14.MapMode = "FlatFace"
sketch14.AttachmentOffset = App.Placement(V(0, 0, -1), App.Rotation())
add_polygon(sketch14, [(-7, 102), (-7, 139), (-42, 143), (-42, 119)])  # lines 0-3
sketch14.addConstraint([
    Sketcher.Constraint("Vertical", 0),
    Sketcher.Constraint("Vertical", 2),
    Sketcher.Constraint("Distance", 1, 35.413651),
    Sketcher.Constraint("DistanceY", 0, 1, 0, 2, 36.618965),
    Sketcher.Constraint("DistanceY", 2, 2, 2, 1, 23.388656),
    Sketcher.Constraint("DistanceX", 0, 2, -1, 1, 7.053021),
    Sketcher.Constraint("DistanceX", 1, 2, -1, 1, 42.260719),
    Sketcher.Constraint("DistanceY", -1, 1, 0, 2, 138.840042),
])
pad14 = doc.addObject("PartDesign::Pad", "Pad013")
body40.addObject(pad14)
pad14.Profile = sketch14
pad14.setExpression("Length", "Params.pad14_length")
doc.recompute()

boolean33 = doc.addObject("PartDesign::Boolean", "Boolean032")
body40.addObject(boolean33)
boolean33.Type = "Cut"
boolean33.addObjects([body39])
doc.recompute()

boolean34 = doc.addObject("PartDesign::Boolean", "Boolean033")
body40.addObject(boolean34)
boolean34.Type = "Cut"
boolean34.addObjects([body38])
doc.recompute()

boolean35 = doc.addObject("PartDesign::Boolean", "Boolean034")
body40.addObject(boolean35)
boolean35.Type = "Cut"
boolean35.addObjects([body35])
doc.recompute()

chamfer = doc.addObject("PartDesign::Chamfer", "Chamfer")
body40.addObject(chamfer)
chamfer.Base = (boolean35, edges_at(boolean35, [(20, -16.882, 106.979)]))
chamfer.setExpression("Size", "Params.chamfer_size")
doc.recompute()

boolean36 = doc.addObject("PartDesign::Boolean", "Boolean035")
body40.addObject(boolean36)
boolean36.Type = "Cut"
boolean36.addObjects([body32])
doc.recompute()

boolean37 = doc.addObject("PartDesign::Boolean", "Boolean036")
body40.addObject(boolean37)
boolean37.Type = "Cut"
boolean37.addObjects([body29])
doc.recompute()

boolean38 = doc.addObject("PartDesign::Boolean", "Boolean037")
body40.addObject(boolean38)
boolean38.Type = "Cut"
boolean38.addObjects([body15])
doc.recompute()

boolean39 = doc.addObject("PartDesign::Boolean", "Boolean038")
body40.addObject(boolean39)
boolean39.Type = "Cut"
boolean39.addObjects([body3])
doc.recompute()

chamfer2 = doc.addObject("PartDesign::Chamfer", "Chamfer001")
body40.addObject(chamfer2)
chamfer2.Base = (boolean39, edges_at(boolean39, [(41, -7.053, 120.531)]))
chamfer2.setExpression("Size", "Params.chamfer2_size")

doc.recompute()
